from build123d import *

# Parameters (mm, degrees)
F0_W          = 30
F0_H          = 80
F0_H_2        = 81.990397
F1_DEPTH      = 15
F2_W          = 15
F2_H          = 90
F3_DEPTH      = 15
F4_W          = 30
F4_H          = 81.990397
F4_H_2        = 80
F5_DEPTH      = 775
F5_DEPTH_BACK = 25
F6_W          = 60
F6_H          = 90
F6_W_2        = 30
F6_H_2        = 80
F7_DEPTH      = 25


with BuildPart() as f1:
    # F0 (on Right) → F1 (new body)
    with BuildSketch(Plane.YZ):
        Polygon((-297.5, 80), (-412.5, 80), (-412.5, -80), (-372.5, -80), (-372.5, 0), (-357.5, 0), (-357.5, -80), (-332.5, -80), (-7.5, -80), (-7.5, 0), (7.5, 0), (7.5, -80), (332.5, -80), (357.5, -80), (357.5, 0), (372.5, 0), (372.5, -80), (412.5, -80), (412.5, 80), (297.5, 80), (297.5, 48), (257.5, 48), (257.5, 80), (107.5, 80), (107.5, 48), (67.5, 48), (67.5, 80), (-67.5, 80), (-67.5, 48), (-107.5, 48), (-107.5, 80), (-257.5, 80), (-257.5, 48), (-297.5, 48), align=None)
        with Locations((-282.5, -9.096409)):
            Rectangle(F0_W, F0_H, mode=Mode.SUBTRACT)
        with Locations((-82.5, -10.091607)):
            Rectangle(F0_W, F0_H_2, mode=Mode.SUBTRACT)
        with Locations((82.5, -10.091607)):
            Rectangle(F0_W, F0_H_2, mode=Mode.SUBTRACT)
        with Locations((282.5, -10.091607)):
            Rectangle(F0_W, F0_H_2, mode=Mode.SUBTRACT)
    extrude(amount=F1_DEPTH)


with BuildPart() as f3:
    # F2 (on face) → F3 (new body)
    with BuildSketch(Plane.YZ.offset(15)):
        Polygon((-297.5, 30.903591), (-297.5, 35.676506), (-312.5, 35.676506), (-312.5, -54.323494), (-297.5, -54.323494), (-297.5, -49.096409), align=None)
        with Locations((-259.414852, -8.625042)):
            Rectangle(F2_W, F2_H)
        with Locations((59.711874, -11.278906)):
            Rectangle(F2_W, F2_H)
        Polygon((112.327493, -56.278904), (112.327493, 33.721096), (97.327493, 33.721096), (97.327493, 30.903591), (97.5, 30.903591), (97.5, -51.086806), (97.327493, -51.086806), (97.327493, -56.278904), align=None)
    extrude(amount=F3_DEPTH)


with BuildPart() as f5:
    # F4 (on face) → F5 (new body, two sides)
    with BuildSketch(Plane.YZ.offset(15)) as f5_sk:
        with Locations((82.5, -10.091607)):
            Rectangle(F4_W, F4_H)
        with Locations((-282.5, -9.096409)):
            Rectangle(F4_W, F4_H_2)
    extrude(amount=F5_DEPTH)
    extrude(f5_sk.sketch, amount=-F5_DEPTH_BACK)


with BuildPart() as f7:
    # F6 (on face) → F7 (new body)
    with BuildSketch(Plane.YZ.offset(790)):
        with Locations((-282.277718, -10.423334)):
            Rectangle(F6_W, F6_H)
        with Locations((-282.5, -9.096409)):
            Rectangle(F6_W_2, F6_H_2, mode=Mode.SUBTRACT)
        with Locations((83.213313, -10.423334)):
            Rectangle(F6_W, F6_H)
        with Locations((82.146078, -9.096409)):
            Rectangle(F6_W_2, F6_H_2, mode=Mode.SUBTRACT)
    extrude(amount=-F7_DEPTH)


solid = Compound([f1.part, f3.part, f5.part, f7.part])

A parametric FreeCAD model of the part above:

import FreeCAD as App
import Part
import Sketcher


def add_polygon(sketch, points):
    """Adds a closed chain of lines whose ends are joined by coincident constraints."""
    first, n = sketch.GeometryCount, len(points)
    for a, b in zip(points, points[1:] + points[:1]):
        sketch.addGeometry(Part.LineSegment(App.Vector(*a, 0), App.Vector(*b, 0)), False)
    for i in range(n):
        sketch.addConstraint(Sketcher.Constraint("Coincident", first + i, 2, first + (i + 1) % n, 1))

doc = App.newDocument("Part")
params = doc.addObject("Spreadsheet::Sheet", "Params")
for row, (alias, value) in enumerate([
    ("sketch1_width", "115 mm"),
    ("sketch1_width2", "40 mm"),
    ("sketch1_width3", "15 mm"),
    ("sketch1_width4", "350 mm"),
    ("sketch1_width5", "150 mm"),
    ("pad1_length", "15 mm"),
    ("sketch2_width", "15 mm"),
    ("sketch2_height", "90 mm"),
    ("pad2_length", "15 mm"),
    ("sketch3_width", "30 mm"),
    ("sketch3_height", "80 mm"),
    ("pad3_length", "775 mm"),
    ("pad3_length2", "25 mm"),
    ("sketch4_width", "60 mm"),
    ("sketch4_width2", "30 mm"),
    ("sketch4_height", "90 mm"),
    ("sketch4_height2", "80 mm"),
    ("pad4_length", "25 mm"),
], start=1):
    params.set(f"A{row}", alias)
    params.set(f"B{row}", "=" + value)
    params.setAlias(f"B{row}", alias)

body = doc.addObject("PartDesign::Body", "Body")

# Sketch on YZ plane
sketch1 = doc.addObject("Sketcher::SketchObject", "Sketch")
body.addObject(sketch1)
sketch1.AttachmentSupport = (doc.YZ_Plane, [""])
sketch1.MapMode = "FlatFace"
add_polygon(sketch1, [(-297.5, 80), (-412.5, 80), (-412.5, -80), (-372.5, -80), (-372.5, 0), (-357.5, 0), (-357.5, -80), (-7.5, -80), (-7.5, 0), (7.5, 0), (7.5, -80), (357.5, -80), (357.5, 0), (372.5, 0), (372.5, -80), (412.5, -80), (412.5, 80), (297.5, 80), (297.5, 48), (257.5, 48), (257.5, 80), (107.5, 80), (107.5, 48), (67.5, 48), (67.5, 80), (-67.5, 80), (-67.5, 48), (-107.5, 48), (-107.5, 80), (-257.5, 80), (-257.5, 48), (-297.5, 48)])  # lines 0-31
add_polygon(sketch1, [(-267.5, -49.096409), (-297.5, -49.096409), (-297.5, 30.903591), (-267.5, 30.903591)])  # lines 32-35
add_polygon(sketch1, [(-67.5, -51.086805), (-97.5, -51.086805), (-97.5, 30.903592), (-67.5, 30.903592)])  # lines 36-39
add_polygon(sketch1, [(97.5, -51.086805), (67.5, -51.086805), (67.5, 30.903592), (97.5, 30.903592)])  # lines 40-43
add_polygon(sketch1, [(297.5, -51.086805), (267.5, -51.086805), (267.5, 30.903592), (297.5, 30.903592)])  # lines 44-47
sketch1.addConstraint([
    Sketcher.Constraint("Horizontal", 0),
    Sketcher.Constraint("Vertical", 1),
    Sketcher.Constraint("Horizontal", 2),
    Sketcher.Constraint("Vertical", 3),
    Sketcher.Constraint("Horizontal", 4),
    Sketcher.Constraint("Vertical", 5),
    Sketcher.Constraint("Horizontal", 6),
    Sketcher.Constraint("Vertical", 7),
    Sketcher.Constraint("Horizontal", 8),
    Sketcher.Constraint("Vertical", 9),
    Sketcher.Constraint("Horizontal", 10),
    Sketcher.Constraint("Vertical", 11),
    Sketcher.Constraint("Horizontal", 12),
    Sketcher.Constraint("Vertical", 13),
    Sketcher.Constraint("Horizontal", 14),
    Sketcher.Constraint("Vertical", 15),
    Sketcher.Constraint("Horizontal", 16),
    Sketcher.Constraint("Vertical", 17),
    Sketcher.Constraint("Horizontal", 18),
    Sketcher.Constraint("Vertical", 19),
    Sketcher.Constraint("Horizontal", 20),
    Sketcher.Constraint("Vertical", 21),
    Sketcher.Constraint("Horizontal", 22),
    Sketcher.Constraint("Vertical", 23),
    Sketcher.Constraint("Horizontal", 24),
    Sketcher.Constraint("Vertical", 25),
    Sketcher.Constraint("Horizontal", 26),
    Sketcher.Constraint("Vertical", 27),
    Sketcher.Constraint("Horizontal", 28),
    Sketcher.Constraint("Vertical", 29),
    Sketcher.Constraint("Horizontal", 30),
    Sketcher.Constraint("Vertical", 31),
    Sketcher.Constraint("Horizontal", 32),
    Sketcher.Constraint("Vertical", 33),
    Sketcher.Constraint("Horizontal", 34),
    Sketcher.Constraint("Vertical", 35),
    Sketcher.Constraint("Horizontal", 36),
    Sketcher.Constraint("Vertical", 37),
    Sketcher.Constraint("Horizontal", 38),
    Sketcher.Constraint("Vertical", 39),
    Sketcher.Constraint("Horizontal", 40),
    Sketcher.Constraint("Vertical", 41),
    Sketcher.Constraint("Horizontal", 42),
    Sketcher.Constraint("Vertical", 43),
    Sketcher.Constraint("Horizontal", 44),
    Sketcher.Constraint("Vertical", 45),
    Sketcher.Constraint("Horizontal", 46),
    Sketcher.Constraint("Vertical", 47),
    Sketcher.Constraint("Symmetric", 7, 2, 8, 2, -1, 1),
    Sketcher.Constraint("Symmetric", 4, 2, 11, 2, -1, 1),
    Sketcher.Constraint("Symmetric", 0, 2, 14, 2, -1, 1),
    Sketcher.Constraint("Symmetric", 3, 2, 12, 2, -2),
    Sketcher.Constraint("Symmetric", 22, 2, 25, 2, -2),
    Sketcher.Constraint("Symmetric", 20, 2, 27, 2, -2),
    Sketcher.Constraint("Symmetric", 18, 2, 29, 2, -2),
    Sketcher.Constraint("Symmetric", 16, 2, 31, 2, -2),
    Sketcher.Constraint("Symmetric", 39, 2, 40, 2, -2),
    Sketcher.Constraint("Symmetric", 37, 2, 42, 2, -2),
    Sketcher.Constraint("Symmetric", 34, 2, 45, 2, -2),
    Sketcher.Constraint("Horizontal", 2, 2, 5, 2),
    Sketcher.Constraint("Horizontal", 6, 2, 9, 2),
    Sketcher.Constraint("Horizontal", 10, 2, 13, 2),
    Sketcher.Constraint("Horizontal", 16, 2, 19, 2),
    Sketcher.Constraint("Horizontal", 18, 2, 21, 2),
    Sketcher.Constraint("Horizontal", 20, 2, 23, 2),
    Sketcher.Constraint("Horizontal", 34, 2, 37, 2),
    Sketcher.Constraint("Horizontal", 43, 2, 44, 2),
    Sketcher.Constraint("Vertical", 31, 2, 32, 2),
    Sketcher.Constraint("Vertical", 25, 2, 38, 2),
    Sketcher.Constraint("Vertical", 17, 2, 46, 2),
    Sketcher.Constraint("Equal", 4, 8),
    Sketcher.Constraint("Equal", 14, 18),
    Sketcher.Constraint("Equal", 18, 22),
    Sketcher.Constraint("Equal", 34, 36),
    Sketcher.Constraint("Equal", 13, 33),
    Sketcher.Constraint("DistanceX", 0, 2, 0, 1, 115.0),
    Sketcher.Constraint("DistanceX", 2, 1, 2, 2, 40.0),
    Sketcher.Constraint("DistanceX", 4, 1, 4, 2, 15.0),
    Sketcher.Constraint("DistanceX", 6, 1, 6, 2, 350.0),
    Sketcher.Constraint("DistanceX", 20, 2, 20, 1, 150.0),
    Sketcher.Constraint("DistanceX", 32, 2, 32, 1, 30.0),
    Sketcher.Constraint("DistanceY", 1, 2, 1, 1, 160.0),
    Sketcher.Constraint("DistanceY", 17, 2, 17, 1, 32.0),
    Sketcher.Constraint("DistanceY", 37, 1, 37, 2, 81.990397),
    Sketcher.Constraint("DistanceY", 32, 2, -1, 1, 49.096409),
])
sketch1.setExpression("Constraints[123]", "Params.sketch1_width")
sketch1.setExpression("Constraints[124]", "Params.sketch1_width2")
sketch1.setExpression("Constraints[125]", "Params.sketch1_width3")
sketch1.setExpression("Constraints[126]", "Params.sketch1_width4")
sketch1.setExpression("Constraints[127]", "Params.sketch1_width5")
pad1 = doc.addObject("PartDesign::Pad", "Pad")
body.addObject(pad1)
pad1.Profile = sketch1
pad1.setExpression("Length", "Params.pad1_length")
body2 = doc.addObject("PartDesign::Body", "Body001")
body2.AllowCompound = True

# Sketch on YZ plane
sketch2 = doc.addObject("Sketcher::SketchObject", "Sketch001")
body2.addObject(sketch2)
sketch2.AttachmentSupport = (doc.getObject("YZ_Plane001"), [""])
sketch2.MapMode = "FlatFace"
sketch2.AttachmentOffset = App.Placement(App.Vector(0, 0, 15), App.Rotation())
add_polygon(sketch2, [(-297.5, 35.676506), (-312.5, 35.676506), (-312.5, -54.323494), (-297.5, -54.323494)])  # lines 0-3
add_polygon(sketch2, [(-266.914852, 36.374958), (-266.914852, -53.625042), (-251.914852, -53.625042), (-251.914852, 36.374958)])  # lines 4-7
add_polygon(sketch2, [(52.211874, 33.721094), (52.211874, -56.278906), (67.211874, -56.278906), (67.211874, 33.721094)])  # lines 8-11
add_polygon(sketch2, [(112.327493, -56.278904), (112.327493, 33.721096), (97.327493, 33.721096), (97.327493, 30.903591), (97.5, 30.903591), (97.5, -51.086806), (97.327493, -51.086806), (97.327493, -56.278904)])  # lines 12-19
sketch2.addConstraint([
    Sketcher.Constraint("Horizontal", 0),
    Sketcher.Constraint("Vertical", 1),
    Sketcher.Constraint("Horizontal", 2),
    Sketcher.Constraint("Vertical", 3),
    Sketcher.Constraint("Vertical", 4),
    Sketcher.Constraint("Horizontal", 5),
    Sketcher.Constraint("Vertical", 6),
    Sketcher.Constraint("Horizontal", 7),
    Sketcher.Constraint("Vertical", 8),
    Sketcher.Constraint("Horizontal", 9),
    Sketcher.Constraint("Vertical", 10),
    Sketcher.Constraint("Horizontal", 11),
    Sketcher.Constraint("Vertical", 12),
    Sketcher.Constraint("Horizontal", 13),
    Sketcher.Constraint("Vertical", 14),
    Sketcher.Constraint("Horizontal", 15),
    Sketcher.Constraint("Vertical", 16),
    Sketcher.Constraint("Horizontal", 17),
    Sketcher.Constraint("Vertical", 18),
    Sketcher.Constraint("Horizontal", 19),
    Sketcher.Constraint("Vertical", 14, 2, 17, 2),
    Sketcher.Constraint("Equal", 2, 5),
    Sketcher.Constraint("Equal", 7, 9),
    Sketcher.Constraint("Equal", 11, 13),
    Sketcher.Constraint("Equal", 3, 4),
    Sketcher.Constraint("Equal", 6, 8),
    Sketcher.Constraint("Equal", 10, 12),
    Sketcher.Constraint("DistanceX", 0, 2, 0, 1, 15.0),
    Sketcher.Constraint("DistanceY", 1, 2, 1, 1, 90.0),
    Sketcher.Constraint("DistanceY", 9, 2, 12, 2, 90.000002),
    Sketcher.Constraint("DistanceX", 0, 2, -1, 1, 312.5),
    Sketcher.Constraint("DistanceX", -1, 1, 15, 2, 97.5),
    Sketcher.Constraint("DistanceY", 9, 2, 16, 2, 5.1921),
    Sketcher.Constraint("DistanceX", 15, 1, 15, 2, 0.172507),
    Sketcher.Constraint("DistanceY", 14, 2, 14, 1, 2.817505),
    Sketcher.Constraint("DistanceX", 4, 2, -1, 1, 266.914852),
    Sketcher.Constraint("DistanceY", -1, 1, 14, 2, 30.903591),
    Sketcher.Constraint("DistanceY", 2, 2, 4, 2, 0.698452),
    Sketcher.Constraint("DistanceX", 10, 2, 12, 2, 45.115619),
    Sketcher.Constraint("DistanceY", 12, 2, 6, 2, 2.653862),
])
sketch2.setExpression("Constraints[47]", "Params.sketch2_width")
sketch2.setExpression("Constraints[48]", "Params.sketch2_height")
pad2 = doc.addObject("PartDesign::Pad", "Pad001")
body2.addObject(pad2)
pad2.Profile = sketch2
pad2.setExpression("Length", "Params.pad2_length")
body3 = doc.addObject("PartDesign::Body", "Body002")
body3.AllowCompound = True

# Sketch on YZ plane
sketch3 = doc.addObject("Sketcher::SketchObject", "Sketch002")
body3.addObject(sketch3)
sketch3.AttachmentSupport = (doc.getObject("YZ_Plane002"), [""])
sketch3.MapMode = "FlatFace"
sketch3.AttachmentOffset = App.Placement(App.Vector(0, 0, 15), App.Rotation())
add_polygon(sketch3, [(67.5, 30.903592), (67.5, -51.086805), (97.5, -51.086805), (97.5, 30.903592)])  # lines 0-3
add_polygon(sketch3, [(-297.5, 30.903591), (-297.5, -49.096409), (-267.5, -49.096409), (-267.5, 30.903591)])  # lines 4-7
sketch3.addConstraint([
    Sketcher.Constraint("Vertical", 0),
    Sketcher.Constraint("Horizontal", 1),
    Sketcher.Constraint("Vertical", 2),
    Sketcher.Constraint("Horizontal", 3),
    Sketcher.Constraint("Vertical", 4),
    Sketcher.Constraint("Horizontal", 5),
    Sketcher.Constraint("Vertical", 6),
    Sketcher.Constraint("Horizontal", 7),
    Sketcher.Constraint("Horizontal", 3, 2, 6, 2),
    Sketcher.Constraint("Equal", 3, 5),
    Sketcher.Constraint("DistanceX", 1, 1, 1, 2, 30.0),
    Sketcher.Constraint("DistanceY", 4, 2, 4, 1, 80.0),
    Sketcher.Constraint("DistanceX", 4, 2, 0, 2, 365.0),
    Sketcher.Constraint("DistanceX", -1, 1, 0, 2, 67.5),
    Sketcher.Constraint("DistanceY", 0, 2, 0, 1, 81.990397),
    Sketcher.Constraint("DistanceY", -1, 1, 2, 2, 30.903592),
])
sketch3.setExpression("Constraints[18]", "Params.sketch3_width")
sketch3.setExpression("Constraints[19]", "Params.sketch3_height")
pad3 = doc.addObject("PartDesign::Pad", "Pad002")
body3.addObject(pad3)
pad3.Profile = sketch3
pad3.Type = "TwoLengths"
pad3.setExpression("Length", "Params.pad3_length")
pad3.setExpression("Length2", "Params.pad3_length2")
body4 = doc.addObject("PartDesign::Body", "Body003")
body4.AllowCompound = True

# Sketch on YZ plane
sketch4 = doc.addObject("Sketcher::SketchObject", "Sketch003")
body4.addObject(sketch4)
sketch4.AttachmentSupport = (doc.getObject("YZ_Plane003"), [""])
sketch4.MapMode = "FlatFace"
sketch4.AttachmentOffset = App.Placement(App.Vector(0, 0, 790), App.Rotation())
add_polygon(sketch4, [(-312.277718, 34.576666), (-312.277718, -55.423334), (-252.277718, -55.423334), (-252.277718, 34.576666)])  # lines 0-3
add_polygon(sketch4, [(-267.5, -49.096409), (-297.5, -49.096409), (-297.5, 30.903591), (-267.5, 30.903591)])  # lines 4-7
add_polygon(sketch4, [(53.213313, 34.576666), (53.213313, -55.423334), (113.213313, -55.423334), (113.213313, 34.576666)])  # lines 8-11
add_polygon(sketch4, [(97.146078, -49.096409), (67.146078, -49.096409), (67.146078, 30.903591), (97.146078, 30.903591)])  # lines 12-15
sketch4.addConstraint([
    Sketcher.Constraint("Vertical", 0),
    Sketcher.Constraint("Horizontal", 1),
    Sketcher.Constraint("Vertical", 2),
    Sketcher.Constraint("Horizontal", 3),
    Sketcher.Constraint("Horizontal", 4),
    Sketcher.Constraint("Vertical", 5),
    Sketcher.Constraint("Horizontal", 6),
    Sketcher.Constraint("Vertical", 7),
    Sketcher.Constraint("Vertical", 8),
    Sketcher.Constraint("Horizontal", 9),
    Sketcher.Constraint("Vertical", 10),
    Sketcher.Constraint("Horizontal", 11),
    Sketcher.Constraint("Horizontal", 12),
    Sketcher.Constraint("Vertical", 13),
    Sketcher.Constraint("Horizontal", 14),
    Sketcher.Constraint("Vertical", 15),
    Sketcher.Constraint("Horizontal", 1, 2, 8, 2),
    Sketcher.Constraint("Horizontal", 3, 2, 10, 2),
    Sketcher.Constraint("Horizontal", 7, 2, 12, 2),
    Sketcher.Constraint("Horizontal", 6, 2, 13, 2),
    Sketcher.Constraint("Equal", 3, 9),
    Sketcher.Constraint("Equal", 6, 12),
    Sketcher.Constraint("DistanceX", 1, 1, 1, 2, 60.0),
    Sketcher.Constraint("DistanceX", 4, 2, 4, 1, 30.0),
    Sketcher.Constraint("DistanceY", 0, 2, 0, 1, 90.0),
    Sketcher.Constraint("DistanceY", 5, 1, 5, 2, 80.0),
    Sketcher.Constraint("DistanceX", 4, 2, -1, 1, 297.5),
    Sketcher.Constraint("DistanceX", 0, 2, -1, 1, 312.277718),
    Sketcher.Constraint("DistanceY", 4, 2, -1, 1, 49.096409),
    Sketcher.Constraint("DistanceX", -1, 1, 12, 2, 67.146078),
    Sketcher.Constraint("DistanceX", 1, 2, 8, 2, 305.491031),
    Sketcher.Constraint("DistanceY", 0, 2, -1, 1, 55.423334),
])
sketch4.setExpression("Constraints[38]", "Params.sketch4_width")
sketch4.setExpression("Constraints[39]", "Params.sketch4_width2")
sketch4.setExpression("Constraints[40]", "Params.sketch4_height")
sketch4.setExpression("Constraints[41]", "Params.sketch4_height2")
pad4 = doc.addObject("PartDesign::Pad", "Pad003")
body4.addObject(pad4)
pad4.Profile = sketch4
pad4.setExpression("Length", "Params.pad4_length")
pad4.Reversed = True

doc.recompute()
